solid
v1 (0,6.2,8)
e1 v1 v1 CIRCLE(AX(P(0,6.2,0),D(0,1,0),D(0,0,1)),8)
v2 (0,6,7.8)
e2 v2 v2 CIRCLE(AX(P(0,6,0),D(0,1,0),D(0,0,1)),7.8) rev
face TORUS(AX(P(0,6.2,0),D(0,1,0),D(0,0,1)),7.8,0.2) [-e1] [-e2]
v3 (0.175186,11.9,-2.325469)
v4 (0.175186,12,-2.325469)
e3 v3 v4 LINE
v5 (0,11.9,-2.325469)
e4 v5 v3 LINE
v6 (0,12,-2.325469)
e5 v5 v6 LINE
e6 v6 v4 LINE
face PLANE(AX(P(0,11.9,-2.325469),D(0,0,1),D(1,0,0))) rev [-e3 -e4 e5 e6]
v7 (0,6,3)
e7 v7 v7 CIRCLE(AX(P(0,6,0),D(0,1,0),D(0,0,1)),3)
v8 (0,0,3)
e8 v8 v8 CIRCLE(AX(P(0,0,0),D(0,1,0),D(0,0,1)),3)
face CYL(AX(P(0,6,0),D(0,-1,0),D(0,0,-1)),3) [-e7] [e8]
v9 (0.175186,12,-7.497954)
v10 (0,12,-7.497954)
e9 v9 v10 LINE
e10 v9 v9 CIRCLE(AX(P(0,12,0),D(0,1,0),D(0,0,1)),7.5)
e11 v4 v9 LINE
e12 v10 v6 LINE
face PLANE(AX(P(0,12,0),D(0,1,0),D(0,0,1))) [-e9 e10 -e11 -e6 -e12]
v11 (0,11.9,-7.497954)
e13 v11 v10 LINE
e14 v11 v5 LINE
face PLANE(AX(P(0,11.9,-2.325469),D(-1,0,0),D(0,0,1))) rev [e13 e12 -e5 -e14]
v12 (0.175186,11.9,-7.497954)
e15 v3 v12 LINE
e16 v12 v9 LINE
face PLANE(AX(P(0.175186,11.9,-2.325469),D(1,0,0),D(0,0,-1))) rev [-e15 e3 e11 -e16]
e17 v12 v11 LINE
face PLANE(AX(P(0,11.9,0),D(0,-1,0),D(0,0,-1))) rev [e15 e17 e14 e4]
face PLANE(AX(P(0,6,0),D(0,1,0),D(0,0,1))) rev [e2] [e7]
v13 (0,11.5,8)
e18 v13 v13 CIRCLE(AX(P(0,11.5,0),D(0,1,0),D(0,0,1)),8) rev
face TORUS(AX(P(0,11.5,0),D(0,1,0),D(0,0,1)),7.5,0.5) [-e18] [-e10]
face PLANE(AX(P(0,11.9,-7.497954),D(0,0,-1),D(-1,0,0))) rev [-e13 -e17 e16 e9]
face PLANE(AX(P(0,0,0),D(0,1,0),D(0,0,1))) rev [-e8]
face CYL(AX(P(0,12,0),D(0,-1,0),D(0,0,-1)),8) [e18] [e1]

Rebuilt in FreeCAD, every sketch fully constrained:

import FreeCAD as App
import Part
import Sketcher
from FreeCAD import Vector


def edges_at(feature, points):
    """Names of the edges that pass closest to the given points."""
    edges = feature.Shape.Edges
    near = lambda p: min(range(len(edges)), key=lambda i: edges[i].distToShape(Part.Vertex(*p))[0])
    return sorted({f"Edge{near(p) + 1}" for p in points})


def add_polygon(sketch, points):
    """Adds a closed chain of lines whose ends are joined by coincident constraints."""
    first, n = sketch.GeometryCount, len(points)
    for a, b in zip(points, points[1:] + points[:1]):
        sketch.addGeometry(Part.LineSegment(App.Vector(*a, 0), App.Vector(*b, 0)), False)
    for i in range(n):
        sketch.addConstraint(Sketcher.Constraint("Coincident", first + i, 2, first + (i + 1) % n, 1))

doc = App.newDocument("Part")
params = doc.addObject("Spreadsheet::Sheet", "Params")
for row, (alias, value) in enumerate([
    ("sketch1_diameter", "6 mm"),
    ("pad1_length", "6 mm"),
    ("sketch2_diameter", "16 mm"),
    ("pad2_length", "6 mm"),
    ("fillet_radius", "0.2 mm"),
    ("fillet2_radius", "0.5 mm"),
    ("pocket1_length", "0.1 mm"),
], start=1):
    params.set(f"A{row}", alias)
    params.set(f"B{row}", "=" + value)
    params.setAlias(f"B{row}", alias)

body = doc.addObject("PartDesign::Body", "Body")

sketch1 = body.newObject("Sketcher::SketchObject", "Sketch")
sketch1.AttachmentSupport = (doc.getObject("XZ_Plane"), [""])
sketch1.MapMode = "FlatFace"
sketch1.addGeometry(Part.Circle(Vector(0, 0, 0), Vector(0, 0, 1), 3), False)
sketch1.addConstraint([
    Sketcher.Constraint("Coincident", 0, 3, -1, 1),
    Sketcher.Constraint("Diameter", 0, 6.0),
])
sketch1.setExpression("Constraints[1]", "Params.sketch1_diameter")
pad1 = body.newObject("PartDesign::Pad", "Pad")
pad1.Profile = sketch1
pad1.setExpression("Length", "Params.pad1_length")
pad1.Reversed = True

sketch2 = body.newObject("Sketcher::SketchObject", "Sketch001")
sketch2.AttachmentSupport = (doc.getObject("XZ_Plane"), [""])
sketch2.MapMode = "FlatFace"
sketch2.AttachmentOffset = App.Placement(Vector(0, 0, -6), App.Rotation())
sketch2.addGeometry(Part.Circle(Vector(0, 0, 0), Vector(0, 0, 1), 8), False)
sketch2.addConstraint([
    Sketcher.Constraint("Coincident", 0, 3, -1, 1),
    Sketcher.Constraint("Diameter", 0, 16.0),
])
sketch2.setExpression("Constraints[1]", "Params.sketch2_diameter")
pad2 = body.newObject("PartDesign::Pad", "Pad001")
pad2.Profile = sketch2
pad2.setExpression("Length", "Params.pad2_length")
pad2.Reversed = True
doc.recompute()

fillet = body.newObject("PartDesign::Fillet", "Fillet")
fillet.Base = (pad2, edges_at(pad2, [(-8, 6, 0)]))
fillet.setExpression("Radius", "Params.fillet_radius")
doc.recompute()

fillet2 = body.newObject("PartDesign::Fillet", "Fillet001")
fillet2.Base = (fillet, edges_at(fillet, [(-8, 12, 0)]))
fillet2.setExpression("Radius", "Params.fillet2_radius")

sketch3 = body.newObject("Sketcher::SketchObject", "Sketch002")
sketch3.AttachmentSupport = (doc.getObject("XZ_Plane"), [""])
sketch3.MapMode = "FlatFace"
sketch3.AttachmentOffset = App.Placement(Vector(0, 0, -12), App.Rotation())
add_polygon(sketch3, [(0, -7.497954), (0, -2.325469), (0.175186, -2.325469), (0.175186, -7.497954)])
sketch3.addConstraint([
    Sketcher.Constraint("Vertical", 0),
    Sketcher.Constraint("Horizontal", 1),
    Sketcher.Constraint("Vertical", 2),
    Sketcher.Constraint("Horizontal", 3),
    Sketcher.Constraint("PointOnObject", 0, 2, -2),
    Sketcher.Constraint("DistanceX", 1, 1, 1, 2, 0.175186),
    Sketcher.Constraint("DistanceY", 0, 1, 0, 2, 5.172485),
    Sketcher.Constraint("DistanceY", 0, 2, -1, 1, 2.325469),
])
pocket1 = body.newObject("PartDesign::Pocket", "Pocket")
pocket1.Profile = sketch3
pocket1.setExpression("Length", "Params.pocket1_length")
pocket1.Reversed = True

doc.recompute()
